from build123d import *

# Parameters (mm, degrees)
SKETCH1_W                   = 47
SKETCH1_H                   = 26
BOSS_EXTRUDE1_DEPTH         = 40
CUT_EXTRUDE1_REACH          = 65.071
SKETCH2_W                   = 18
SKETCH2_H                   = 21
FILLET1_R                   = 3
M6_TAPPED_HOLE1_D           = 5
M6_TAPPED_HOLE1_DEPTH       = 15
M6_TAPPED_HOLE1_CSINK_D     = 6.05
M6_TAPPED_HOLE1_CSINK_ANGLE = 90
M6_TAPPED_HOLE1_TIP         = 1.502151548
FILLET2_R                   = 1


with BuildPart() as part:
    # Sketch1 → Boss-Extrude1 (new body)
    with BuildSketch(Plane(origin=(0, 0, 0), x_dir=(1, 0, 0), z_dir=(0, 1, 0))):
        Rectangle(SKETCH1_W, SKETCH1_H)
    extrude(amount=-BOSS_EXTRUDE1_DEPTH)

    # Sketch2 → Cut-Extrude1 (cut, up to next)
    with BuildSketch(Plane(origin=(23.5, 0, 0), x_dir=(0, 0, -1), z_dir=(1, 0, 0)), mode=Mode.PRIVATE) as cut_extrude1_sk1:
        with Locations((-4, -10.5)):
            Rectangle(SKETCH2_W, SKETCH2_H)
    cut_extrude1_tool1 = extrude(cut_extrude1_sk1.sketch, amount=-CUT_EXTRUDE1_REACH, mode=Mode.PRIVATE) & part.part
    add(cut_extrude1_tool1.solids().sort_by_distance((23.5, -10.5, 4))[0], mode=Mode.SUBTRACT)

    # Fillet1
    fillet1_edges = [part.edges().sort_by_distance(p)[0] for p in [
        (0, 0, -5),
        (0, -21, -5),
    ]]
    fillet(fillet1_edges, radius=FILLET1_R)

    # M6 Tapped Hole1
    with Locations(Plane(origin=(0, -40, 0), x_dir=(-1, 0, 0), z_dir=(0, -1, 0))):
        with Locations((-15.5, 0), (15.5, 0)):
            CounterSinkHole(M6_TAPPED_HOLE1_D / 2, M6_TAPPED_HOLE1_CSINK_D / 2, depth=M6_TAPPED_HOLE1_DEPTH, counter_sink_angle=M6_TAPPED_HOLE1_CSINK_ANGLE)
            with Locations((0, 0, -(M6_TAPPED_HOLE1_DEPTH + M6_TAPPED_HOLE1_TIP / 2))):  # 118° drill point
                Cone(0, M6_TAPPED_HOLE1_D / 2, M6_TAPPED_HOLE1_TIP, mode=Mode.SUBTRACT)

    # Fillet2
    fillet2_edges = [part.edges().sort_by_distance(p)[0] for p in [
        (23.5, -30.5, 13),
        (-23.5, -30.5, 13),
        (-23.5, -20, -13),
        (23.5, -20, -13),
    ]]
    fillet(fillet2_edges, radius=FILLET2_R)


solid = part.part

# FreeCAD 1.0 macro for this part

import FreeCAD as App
import Part
import Sketcher


def edges_at(feature, points):
    """Names of the edges that pass closest to the given points."""
    edges = feature.Shape.Edges
    near = lambda p: min(range(len(edges)), key=lambda i: edges[i].distToShape(Part.Vertex(*p))[0])
    return sorted({f"Edge{near(p) + 1}" for p in points})

doc = App.newDocument("Part")
params = doc.addObject("Spreadsheet::Sheet", "Params")
for row, (alias, value) in enumerate([
    ("sketch1_width", "47 mm"),
    ("sketch1_height", "26 mm"),
    ("pad1_length", "40 mm"),
    ("sketch2_width", "21 mm"),
    ("sketch2_height", "18 mm"),
    ("fillet_radius", "3 mm"),
    ("sketch3_diameter", "5 mm"),
    ("hole_diameter", "5 mm"),
    ("hole_depth", "15 mm"),
    ("hole_csink_diameter", "6.05 mm"),
    ("fillet2_radius", "1 mm"),
], start=1):
    params.set(f"A{row}", alias)
    params.set(f"B{row}", "=" + value)
    params.setAlias(f"B{row}", alias)

body = doc.addObject("PartDesign::Body", "Body")

sketch1 = doc.addObject("Sketcher::SketchObject", "Sketch")
body.addObject(sketch1)
sketch1.AttachmentSupport = (doc.XZ_Plane, [""])
sketch1.MapMode = "FlatFace"
sketch1.addGeometry([
    Part.LineSegment(App.Vector(-24, -13, 0), App.Vector(-24, 13, 0)),
    Part.LineSegment(App.Vector(-24, 13, 0), App.Vector(24, 13, 0)),
    Part.LineSegment(App.Vector(24, 13, 0), App.Vector(24, -13, 0)),
    Part.LineSegment(App.Vector(24, -13, 0), App.Vector(-24, -13, 0)),
], False)
sketch1.addConstraint([
    Sketcher.Constraint("Coincident", 0, 2, 1, 1),
    Sketcher.Constraint("Coincident", 1, 2, 2, 1),
    Sketcher.Constraint("Coincident", 2, 2, 3, 1),
    Sketcher.Constraint("Coincident", 3, 2, 0, 1),
    Sketcher.Constraint("Vertical", 0),
    Sketcher.Constraint("Horizontal", 1),
    Sketcher.Constraint("Vertical", 2),
    Sketcher.Constraint("Horizontal", 3),
    Sketcher.Constraint("Symmetric", 0, 2, 2, 2, -1, 1),
    Sketcher.Constraint("DistanceX", 1, 1, 1, 2, 47.0),
    Sketcher.Constraint("DistanceY", 0, 1, 0, 2, 26.0),
])
sketch1.setExpression("Constraints[9]", "Params.sketch1_width")
sketch1.setExpression("Constraints[10]", "Params.sketch1_height")
pad1 = doc.addObject("PartDesign::Pad", "Pad")
body.addObject(pad1)
pad1.Profile = sketch1
pad1.setExpression("Length", "Params.pad1_length")

sketch2 = doc.addObject("Sketcher::SketchObject", "Sketch001")
body.addObject(sketch2)
sketch2.AttachmentSupport = (doc.YZ_Plane, [""])
sketch2.MapMode = "FlatFace"
sketch2.AttachmentOffset = App.Placement(App.Vector(0, 0, 23.5), App.Rotation())
sketch2.addGeometry([
    Part.LineSegment(App.Vector(0, 13, 0), App.Vector(-21, 13, 0)),
    Part.LineSegment(App.Vector(-21, 13, 0), App.Vector(-21, -5, 0)),
    Part.LineSegment(App.Vector(-21, -5, 0), App.Vector(0, -5, 0)),
    Part.LineSegment(App.Vector(0, -5, 0), App.Vector(0, 13, 0)),
], False)
sketch2.addConstraint([
    Sketcher.Constraint("Coincident", 0, 2, 1, 1),
    Sketcher.Constraint("Coincident", 1, 2, 2, 1),
    Sketcher.Constraint("Coincident", 2, 2, 3, 1),
    Sketcher.Constraint("Coincident", 3, 2, 0, 1),
    Sketcher.Constraint("Horizontal", 0),
    Sketcher.Constraint("Vertical", 1),
    Sketcher.Constraint("Horizontal", 2),
    Sketcher.Constraint("Vertical", 3),
    Sketcher.Constraint("PointOnObject", 2, 2, -2),
    Sketcher.Constraint("DistanceX", 0, 2, 0, 1, 21.0),
    Sketcher.Constraint("DistanceY", 1, 2, 1, 1, 18.0),
    Sketcher.Constraint("DistanceY", -1, 1, 0, 2, 13.0),
])
sketch2.setExpression("Constraints[9]", "Params.sketch2_width")
sketch2.setExpression("Constraints[10]", "Params.sketch2_height")
pocket1 = doc.addObject("PartDesign::Pocket", "Pocket")
body.addObject(pocket1)
pocket1.Profile = sketch2
pocket1.Type = "UpToFirst"
doc.recompute()

fillet = doc.addObject("PartDesign::Fillet", "Fillet")
body.addObject(fillet)
fillet.Base = (pocket1, edges_at(pocket1, [(0, 0, -5), (0, -21, -5)]))
fillet.setExpression("Radius", "Params.fillet_radius")

sketch3 = doc.addObject("Sketcher::SketchObject", "Sketch002")
body.addObject(sketch3)
sketch3.AttachmentSupport = (doc.XZ_Plane, [""])
sketch3.MapMode = "FlatFace"
sketch3.AttachmentOffset = App.Placement(App.Vector(0, 0, 40), App.Rotation())
sketch3.addGeometry([
    Part.Circle(App.Vector(15.5, 0, 0), App.Vector(0, 0, 1), 2.5),
    Part.Circle(App.Vector(-15.5, 0, 0), App.Vector(0, 0, 1), 2.5),
], False)
sketch3.addConstraint([
    Sketcher.Constraint("Equal", 0, 1),
    Sketcher.Constraint("Symmetric", 0, 3, 1, 3, -1, 1),
    Sketcher.Constraint("PointOnObject", 0, 3, -1),
    Sketcher.Constraint("Diameter", 0, 5.0),
    Sketcher.Constraint("DistanceX", 1, 3, 0, 3, 31.0),
])
sketch3.setExpression("Constraints[3]", "Params.sketch3_diameter")
doc.recompute()
hole = doc.addObject("PartDesign::Hole", "Hole")
body.addObject(hole)
hole.Profile = sketch3
hole.ThreadType = "None"
hole.setExpression("Diameter", "Params.hole_diameter")
hole.DepthType = "Dimension"
hole.setExpression("Depth", "Params.hole_depth")
hole.DrillPoint = "Angled"
hole.DrillPointAngle = 118
hole.HoleCutType = "Countersink"
hole.setExpression("HoleCutDiameter", "Params.hole_csink_diameter")
hole.HoleCutCountersinkAngle = 90
doc.recompute()

fillet2 = doc.addObject("PartDesign::Fillet", "Fillet001")
body.addObject(fillet2)
fillet2.Base = (hole, edges_at(hole, [
    (23.5, -30.5, 13),
    (-23.5, -30.5, 13),
    (-23.5, -20, -13),
    (23.5, -20, -13),
]))
fillet2.setExpression("Radius", "Params.fillet2_radius")

doc.recompute()
